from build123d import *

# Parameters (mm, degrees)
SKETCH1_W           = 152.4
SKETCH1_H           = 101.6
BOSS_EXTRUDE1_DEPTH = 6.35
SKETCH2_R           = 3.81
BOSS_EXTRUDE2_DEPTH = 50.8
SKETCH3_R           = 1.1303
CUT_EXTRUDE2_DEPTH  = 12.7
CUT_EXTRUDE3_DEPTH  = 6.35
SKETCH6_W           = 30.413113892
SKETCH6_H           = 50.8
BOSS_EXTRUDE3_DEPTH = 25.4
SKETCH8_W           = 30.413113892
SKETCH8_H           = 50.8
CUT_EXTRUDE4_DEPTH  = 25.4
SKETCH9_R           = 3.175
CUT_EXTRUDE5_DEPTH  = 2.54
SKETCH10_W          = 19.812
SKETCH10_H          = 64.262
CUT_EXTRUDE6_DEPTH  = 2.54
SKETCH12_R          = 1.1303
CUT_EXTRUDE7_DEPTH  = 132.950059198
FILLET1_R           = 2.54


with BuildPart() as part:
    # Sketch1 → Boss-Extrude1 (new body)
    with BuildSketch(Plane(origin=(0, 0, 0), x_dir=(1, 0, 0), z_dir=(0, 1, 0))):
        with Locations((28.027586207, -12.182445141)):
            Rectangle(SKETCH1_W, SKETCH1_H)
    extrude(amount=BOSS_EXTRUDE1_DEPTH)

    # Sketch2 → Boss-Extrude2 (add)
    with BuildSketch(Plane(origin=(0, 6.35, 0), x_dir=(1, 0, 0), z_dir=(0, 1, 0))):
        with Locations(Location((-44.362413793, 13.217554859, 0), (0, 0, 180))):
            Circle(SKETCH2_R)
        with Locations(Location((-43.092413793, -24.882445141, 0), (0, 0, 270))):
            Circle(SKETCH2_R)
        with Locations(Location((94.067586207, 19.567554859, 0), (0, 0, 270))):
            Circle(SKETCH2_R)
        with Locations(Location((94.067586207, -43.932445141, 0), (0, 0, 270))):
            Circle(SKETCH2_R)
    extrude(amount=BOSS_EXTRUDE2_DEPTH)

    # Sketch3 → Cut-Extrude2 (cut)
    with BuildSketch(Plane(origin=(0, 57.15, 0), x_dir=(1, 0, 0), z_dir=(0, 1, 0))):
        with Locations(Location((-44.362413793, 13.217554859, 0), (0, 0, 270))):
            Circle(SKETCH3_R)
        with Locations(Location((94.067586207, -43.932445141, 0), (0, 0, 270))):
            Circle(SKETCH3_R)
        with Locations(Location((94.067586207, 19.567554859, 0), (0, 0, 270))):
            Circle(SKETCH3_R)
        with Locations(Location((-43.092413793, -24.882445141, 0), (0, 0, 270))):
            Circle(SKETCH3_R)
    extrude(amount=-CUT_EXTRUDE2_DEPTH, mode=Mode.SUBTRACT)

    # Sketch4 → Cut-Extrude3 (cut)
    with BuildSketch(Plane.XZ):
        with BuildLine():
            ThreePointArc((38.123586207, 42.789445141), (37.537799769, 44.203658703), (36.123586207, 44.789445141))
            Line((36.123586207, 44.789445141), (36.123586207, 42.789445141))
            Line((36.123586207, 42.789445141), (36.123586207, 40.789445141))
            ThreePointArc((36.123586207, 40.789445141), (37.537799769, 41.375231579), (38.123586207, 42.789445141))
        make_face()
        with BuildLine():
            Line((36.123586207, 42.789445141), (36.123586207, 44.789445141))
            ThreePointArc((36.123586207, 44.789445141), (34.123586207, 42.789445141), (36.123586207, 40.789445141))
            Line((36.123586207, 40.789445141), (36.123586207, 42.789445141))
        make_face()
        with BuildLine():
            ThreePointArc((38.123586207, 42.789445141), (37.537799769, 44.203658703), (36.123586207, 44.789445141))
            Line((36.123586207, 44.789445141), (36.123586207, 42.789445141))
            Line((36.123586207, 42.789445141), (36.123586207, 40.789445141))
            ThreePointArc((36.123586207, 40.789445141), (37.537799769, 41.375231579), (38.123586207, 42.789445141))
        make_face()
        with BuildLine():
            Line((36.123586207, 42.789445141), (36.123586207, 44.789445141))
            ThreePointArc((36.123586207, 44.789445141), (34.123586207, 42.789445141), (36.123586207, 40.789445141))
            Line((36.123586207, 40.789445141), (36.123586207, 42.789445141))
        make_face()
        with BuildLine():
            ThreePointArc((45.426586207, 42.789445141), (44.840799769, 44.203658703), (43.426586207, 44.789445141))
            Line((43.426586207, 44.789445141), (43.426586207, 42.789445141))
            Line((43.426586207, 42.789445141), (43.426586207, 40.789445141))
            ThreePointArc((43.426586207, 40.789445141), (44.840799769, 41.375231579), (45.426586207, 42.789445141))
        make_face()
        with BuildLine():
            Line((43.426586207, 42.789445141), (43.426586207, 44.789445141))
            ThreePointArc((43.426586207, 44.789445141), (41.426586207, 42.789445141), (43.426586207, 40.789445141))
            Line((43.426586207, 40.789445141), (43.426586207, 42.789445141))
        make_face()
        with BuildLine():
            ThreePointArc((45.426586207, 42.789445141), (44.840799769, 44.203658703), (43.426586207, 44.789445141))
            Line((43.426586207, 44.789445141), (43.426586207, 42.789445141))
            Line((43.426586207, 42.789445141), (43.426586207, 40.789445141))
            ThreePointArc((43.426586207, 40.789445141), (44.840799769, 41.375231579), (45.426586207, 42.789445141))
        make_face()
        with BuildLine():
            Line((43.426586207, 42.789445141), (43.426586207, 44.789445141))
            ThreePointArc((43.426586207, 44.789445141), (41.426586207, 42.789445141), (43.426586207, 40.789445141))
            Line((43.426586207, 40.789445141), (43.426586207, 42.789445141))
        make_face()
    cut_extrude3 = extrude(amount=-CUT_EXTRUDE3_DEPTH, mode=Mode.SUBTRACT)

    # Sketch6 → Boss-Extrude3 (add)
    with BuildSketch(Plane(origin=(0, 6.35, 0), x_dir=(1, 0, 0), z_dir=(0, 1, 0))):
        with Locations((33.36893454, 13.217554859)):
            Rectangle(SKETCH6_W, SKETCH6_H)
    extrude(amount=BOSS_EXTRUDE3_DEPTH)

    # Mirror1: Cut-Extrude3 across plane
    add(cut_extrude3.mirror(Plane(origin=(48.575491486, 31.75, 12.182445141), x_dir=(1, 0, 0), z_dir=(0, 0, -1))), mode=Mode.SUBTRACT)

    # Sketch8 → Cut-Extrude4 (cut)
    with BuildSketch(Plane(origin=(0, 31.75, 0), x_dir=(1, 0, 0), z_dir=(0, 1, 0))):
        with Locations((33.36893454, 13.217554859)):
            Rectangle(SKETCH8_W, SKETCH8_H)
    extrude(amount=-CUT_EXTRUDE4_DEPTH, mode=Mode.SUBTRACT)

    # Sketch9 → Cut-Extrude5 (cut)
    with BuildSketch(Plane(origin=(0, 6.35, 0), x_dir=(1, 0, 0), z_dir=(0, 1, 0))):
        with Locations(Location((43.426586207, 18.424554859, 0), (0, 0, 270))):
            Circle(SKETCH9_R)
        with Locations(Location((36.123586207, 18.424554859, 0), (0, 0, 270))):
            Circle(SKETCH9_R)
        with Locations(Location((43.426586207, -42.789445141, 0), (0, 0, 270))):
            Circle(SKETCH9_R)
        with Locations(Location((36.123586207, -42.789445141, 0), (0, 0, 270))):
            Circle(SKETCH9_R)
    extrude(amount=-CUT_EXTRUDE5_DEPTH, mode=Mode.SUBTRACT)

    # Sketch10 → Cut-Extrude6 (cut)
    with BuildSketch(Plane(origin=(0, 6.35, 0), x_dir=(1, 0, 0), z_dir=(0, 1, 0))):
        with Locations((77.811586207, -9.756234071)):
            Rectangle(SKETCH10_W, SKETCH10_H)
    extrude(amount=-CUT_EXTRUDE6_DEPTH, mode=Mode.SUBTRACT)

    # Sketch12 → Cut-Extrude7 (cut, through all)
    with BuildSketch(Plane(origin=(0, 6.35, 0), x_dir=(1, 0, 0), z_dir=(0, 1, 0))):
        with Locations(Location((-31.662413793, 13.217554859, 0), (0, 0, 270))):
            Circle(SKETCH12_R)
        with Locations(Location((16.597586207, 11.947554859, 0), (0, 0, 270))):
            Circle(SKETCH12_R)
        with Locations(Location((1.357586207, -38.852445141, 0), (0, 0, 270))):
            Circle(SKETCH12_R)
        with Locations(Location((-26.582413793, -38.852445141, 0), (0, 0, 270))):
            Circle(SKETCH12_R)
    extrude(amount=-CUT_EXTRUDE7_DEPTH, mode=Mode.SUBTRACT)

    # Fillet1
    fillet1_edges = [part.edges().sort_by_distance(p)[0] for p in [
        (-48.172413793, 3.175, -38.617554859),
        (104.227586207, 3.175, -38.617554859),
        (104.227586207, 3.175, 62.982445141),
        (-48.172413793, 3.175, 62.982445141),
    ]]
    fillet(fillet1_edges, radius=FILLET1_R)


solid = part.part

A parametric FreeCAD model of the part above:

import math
import FreeCAD as App
import Part
import Sketcher

V = App.Vector
Q = App.Units.Quantity


def edges_at(feature, points):
    """Names of the edges that pass closest to the given points."""
    edges = feature.Shape.Edges
    near = lambda p: min(range(len(edges)), key=lambda i: edges[i].distToShape(Part.Vertex(*p))[0])
    return sorted({f"Edge{near(p) + 1}" for p in points})

doc = App.newDocument("Part")
body = doc.addObject("PartDesign::Body", "Body")

sketch1 = body.newObject("Sketcher::SketchObject", "Sketch")
sketch1.AttachmentSupport = (doc.getObject("XZ_Plane"), [""])
sketch1.MapMode = "FlatFace"
sketch1.addGeometry([
    Part.LineSegment(V(-48, -39, 0), V(-48, 63, 0)),
    Part.LineSegment(V(-48, 63, 0), V(104, 63, 0)),
    Part.LineSegment(V(104, 63, 0), V(104, -39, 0)),
    Part.LineSegment(V(104, -39, 0), V(-48, -39, 0)),
], False)
sketch1.addConstraint([
    Sketcher.Constraint("Coincident", 0, 2, 1, 1),
    Sketcher.Constraint("Coincident", 1, 2, 2, 1),
    Sketcher.Constraint("Coincident", 2, 2, 3, 1),
    Sketcher.Constraint("Coincident", 3, 2, 0, 1),
    Sketcher.Constraint("Vertical", 0),
    Sketcher.Constraint("Horizontal", 1),
    Sketcher.Constraint("Vertical", 2),
    Sketcher.Constraint("Horizontal", 3),
    Sketcher.Constraint("DistanceX", 1, 1, 1, 2, Q("6 in")),
    Sketcher.Constraint("DistanceY", 0, 1, 0, 2, Q("4 in")),
    Sketcher.Constraint("DistanceX", 0, 2, -1, 1, 48.172414),
    Sketcher.Constraint("DistanceY", -1, 1, 0, 2, 62.982445),
])
pad1 = body.newObject("PartDesign::Pad", "Pad")
pad1.Profile = sketch1
pad1.Length = Q("0.25 in")
pad1.Reversed = True

sketch2 = body.newObject("Sketcher::SketchObject", "Sketch001")
sketch2.AttachmentSupport = (doc.getObject("XZ_Plane"), [""])
sketch2.MapMode = "FlatFace"
sketch2.AttachmentOffset = App.Placement(V(0, 0, -0.25 * 25.4), App.Rotation())
sketch2.addGeometry([
    Part.Circle(V(-44.4, -13.2, 0), V(0, 0, 1), 3.8),
    Part.Circle(V(-43.1, 24.9, 0), V(0, 0, 1), 3.8),
    Part.Circle(V(94.1, -19.6, 0), V(0, 0, 1), 3.8),
    Part.Circle(V(94.1, 43.9, 0), V(0, 0, 1), 3.8),
], False)
sketch2.addConstraint([
    Sketcher.Constraint("Equal", 0, 1),
    Sketcher.Constraint("Equal", 1, 2),
    Sketcher.Constraint("Equal", 2, 3),
    Sketcher.Constraint("Vertical", 2, 3, 3, 3),
    Sketcher.Constraint("Diameter", 0, Q("0.3 in")),
    Sketcher.Constraint("DistanceY", 0, 3, 1, 3, Q("1.5 in")),
    Sketcher.Constraint("DistanceX", 1, 3, 2, 3, Q("5.4 in")),
    Sketcher.Constraint("DistanceY", 2, 3, 3, 3, Q("2.5 in")),
    Sketcher.Constraint("DistanceX", 0, 3, 1, 3, Q("0.05 in")),
    Sketcher.Constraint("DistanceY", 2, 3, 0, 3, Q("0.25 in")),
    Sketcher.Constraint("DistanceX", 0, 3, -1, 1, 44.362414),
    Sketcher.Constraint("DistanceY", 0, 3, -1, 1, 13.217555),
])
pad2 = body.newObject("PartDesign::Pad", "Pad001")
pad2.Profile = sketch2
pad2.Length = Q("2 in")
pad2.Reversed = True

sketch3 = body.newObject("Sketcher::SketchObject", "Sketch002")
sketch3.AttachmentSupport = (doc.getObject("XZ_Plane"), [""])
sketch3.MapMode = "FlatFace"
sketch3.AttachmentOffset = App.Placement(V(0, 0, -2.25 * 25.4), App.Rotation())
sketch3.addGeometry([
    Part.Circle(V(-44.4, -13.2, 0), V(0, 0, 1), 1.1),
    Part.Circle(V(94.1, 43.9, 0), V(0, 0, 1), 1.1),
    Part.Circle(V(94.1, -19.6, 0), V(0, 0, 1), 1.1),
    Part.Circle(V(-43.1, 24.9, 0), V(0, 0, 1), 1.1),
], False)
sketch3.addConstraint([
    Sketcher.Constraint("Equal", 0, 1),
    Sketcher.Constraint("Equal", 1, 2),
    Sketcher.Constraint("Equal", 2, 3),
    Sketcher.Constraint("Vertical", 1, 3, 2, 3),
    Sketcher.Constraint("Diameter", 0, Q("0.089 in")),
    Sketcher.Constraint("DistanceY", 2, 3, 1, 3, Q("2.5 in")),
    Sketcher.Constraint("DistanceY", 0, 3, 3, 3, Q("1.5 in")),
    Sketcher.Constraint("DistanceX", 3, 3, 1, 3, Q("5.4 in")),
    Sketcher.Constraint("DistanceX", 0, 3, 1, 3, Q("5.45 in")),
    Sketcher.Constraint("DistanceY", 0, 3, 1, 3, Q("2.25 in")),
    Sketcher.Constraint("DistanceX", 0, 3, -1, 1, 44.362414),
    Sketcher.Constraint("DistanceY", 0, 3, -1, 1, 13.217555),
])
pocket1 = body.newObject("PartDesign::Pocket", "Pocket")
pocket1.Profile = sketch3
pocket1.Length = Q("0.5 in")
pocket1.Reversed = True

sketch4 = body.newObject("Sketcher::SketchObject", "Sketch003")
sketch4.AttachmentSupport = (doc.getObject("XZ_Plane"), [""])
sketch4.MapMode = "FlatFace"
sketch4.addGeometry([
    Part.ArcOfCircle(Part.Circle(V(36.1, 42.8, 0), V(0, 0, 1), 2), math.radians(0), math.radians(90)),
    Part.ArcOfCircle(Part.Circle(V(36.1, 42.8, 0), V(0, 0, 1), 2), math.radians(90), math.radians(270)),
    Part.ArcOfCircle(Part.Circle(V(36.1, 42.8, 0), V(0, 0, 1), 2), math.radians(-90), math.radians(0)),
    Part.ArcOfCircle(Part.Circle(V(43.4, 42.8, 0), V(0, 0, 1), 2), math.radians(0), math.radians(90)),
    Part.ArcOfCircle(Part.Circle(V(43.4, 42.8, 0), V(0, 0, 1), 2), math.radians(90), math.radians(270)),
    Part.ArcOfCircle(Part.Circle(V(43.4, 42.8, 0), V(0, 0, 1), 2), math.radians(-90), math.radians(0)),
], False)
sketch4.addConstraint([
    Sketcher.Constraint("Tangent", 0, 2, 1, 1),
    Sketcher.Constraint("Tangent", 1, 2, 2, 1),
    Sketcher.Constraint("Tangent", 2, 2, 0, 1),
    Sketcher.Constraint("Tangent", 3, 2, 4, 1),
    Sketcher.Constraint("Tangent", 4, 2, 5, 1),
    Sketcher.Constraint("Tangent", 5, 2, 3, 1),
    Sketcher.Constraint("Equal", 2, 3),
    Sketcher.Constraint("Horizontal", 2, 3, 3, 3),
    Sketcher.Constraint("Horizontal", 5, 3, 2, 2),
    Sketcher.Constraint("Horizontal", 2, 2, 5, 2),
    Sketcher.Constraint("Vertical", 2, 3, 0, 2),
    Sketcher.Constraint("Vertical", 0, 2, 1, 2),
    Sketcher.Constraint("Vertical", 5, 3, 3, 2),
    Sketcher.Constraint("Vertical", 3, 2, 4, 2),
    Sketcher.Constraint("Radius", 0, 2.0),
    Sketcher.Constraint("DistanceX", 1, 3, 3, 3, 7.303),
    Sketcher.Constraint("DistanceX", -1, 1, 0, 3, 36.123586),
    Sketcher.Constraint("DistanceY", -1, 1, 0, 3, 42.789445),
])
pocket2 = body.newObject("PartDesign::Pocket", "Pocket001")
pocket2.Profile = sketch4
pocket2.Length = Q("0.25 in")

sketch5 = body.newObject("Sketcher::SketchObject", "Sketch004")
sketch5.AttachmentSupport = (doc.getObject("XZ_Plane"), [""])
sketch5.MapMode = "FlatFace"
sketch5.AttachmentOffset = App.Placement(V(0, 0, -0.25 * 25.4), App.Rotation())
sketch5.addGeometry([
    Part.LineSegment(V(18, -39, 0), V(18, 12, 0)),
    Part.LineSegment(V(18, 12, 0), V(49, 12, 0)),
    Part.LineSegment(V(49, 12, 0), V(49, -39, 0)),
    Part.LineSegment(V(49, -39, 0), V(18, -39, 0)),
], False)
sketch5.addConstraint([
    Sketcher.Constraint("Coincident", 0, 2, 1, 1),
    Sketcher.Constraint("Coincident", 1, 2, 2, 1),
    Sketcher.Constraint("Coincident", 2, 2, 3, 1),
    Sketcher.Constraint("Coincident", 3, 2, 0, 1),
    Sketcher.Constraint("Vertical", 0),
    Sketcher.Constraint("Horizontal", 1),
    Sketcher.Constraint("Vertical", 2),
    Sketcher.Constraint("Horizontal", 3),
    Sketcher.Constraint("DistanceY", 0, 1, 0, 2, Q("2 in")),
    Sketcher.Constraint("DistanceX", 1, 1, 1, 2, 30.413114),
    Sketcher.Constraint("DistanceX", -1, 1, 1, 2, 48.575491),
    Sketcher.Constraint("DistanceY", -1, 1, 0, 2, 12.182445),
])
pad3 = body.newObject("PartDesign::Pad", "Pad002")
pad3.Profile = sketch5
pad3.Length = Q("1 in")
pad3.Reversed = True
doc.recompute()

datumplane = body.newObject("PartDesign::Plane", "DatumPlane")
datumplane.AttachmentSupport = (doc.getObject("XY_Plane"), [""])
datumplane.MapMode = "FlatFace"
datumplane.AttachmentOffset = App.Placement(V(0, 0, 12.182445), App.Rotation())
mirrored = body.newObject("PartDesign::Mirrored", "Mirrored")
mirrored.Originals = [pocket2]
mirrored.MirrorPlane = (datumplane, [""])
body.Tip = mirrored

sketch6 = body.newObject("Sketcher::SketchObject", "Sketch005")
sketch6.AttachmentSupport = (doc.getObject("XZ_Plane"), [""])
sketch6.MapMode = "FlatFace"
sketch6.AttachmentOffset = App.Placement(V(0, 0, -1.25 * 25.4), App.Rotation())
sketch6.addGeometry([
    Part.LineSegment(V(18, -39, 0), V(18, 12, 0)),
    Part.LineSegment(V(18, 12, 0), V(49, 12, 0)),
    Part.LineSegment(V(49, 12, 0), V(49, -39, 0)),
    Part.LineSegment(V(49, -39, 0), V(18, -39, 0)),
], False)
sketch6.addConstraint([
    Sketcher.Constraint("Coincident", 0, 2, 1, 1),
    Sketcher.Constraint("Coincident", 1, 2, 2, 1),
    Sketcher.Constraint("Coincident", 2, 2, 3, 1),
    Sketcher.Constraint("Coincident", 3, 2, 0, 1),
    Sketcher.Constraint("Vertical", 0),
    Sketcher.Constraint("Horizontal", 1),
    Sketcher.Constraint("Vertical", 2),
    Sketcher.Constraint("Horizontal", 3),
    Sketcher.Constraint("DistanceY", 0, 1, 0, 2, Q("2 in")),
    Sketcher.Constraint("DistanceX", 1, 1, 1, 2, 30.413114),
    Sketcher.Constraint("DistanceX", -1, 1, 1, 2, 48.575491),
    Sketcher.Constraint("DistanceY", -1, 1, 0, 2, 12.182445),
])
pocket3 = body.newObject("PartDesign::Pocket", "Pocket002")
pocket3.Profile = sketch6
pocket3.Length = Q("1 in")
pocket3.Reversed = True

sketch7 = body.newObject("Sketcher::SketchObject", "Sketch006")
sketch7.AttachmentSupport = (doc.getObject("XZ_Plane"), [""])
sketch7.MapMode = "FlatFace"
sketch7.AttachmentOffset = App.Placement(V(0, 0, -0.25 * 25.4), App.Rotation())
sketch7.addGeometry([
    Part.Circle(V(43.4, -18.4, 0), V(0, 0, 1), 3.2),
    Part.Circle(V(36.1, -18.4, 0), V(0, 0, 1), 3.2),
    Part.Circle(V(43.4, 42.8, 0), V(0, 0, 1), 3.2),
    Part.Circle(V(36.1, 42.8, 0), V(0, 0, 1), 3.2),
], False)
sketch7.addConstraint([
    Sketcher.Constraint("Equal", 0, 1),
    Sketcher.Constraint("Equal", 1, 2),
    Sketcher.Constraint("Equal", 2, 3),
    Sketcher.Constraint("Horizontal", 0, 3, 1, 3),
    Sketcher.Constraint("Horizontal", 2, 3, 3, 3),
    Sketcher.Constraint("Vertical", 0, 3, 2, 3),
    Sketcher.Constraint("Vertical", 1, 3, 3, 3),
    Sketcher.Constraint("Diameter", 0, Q("0.25 in")),
    Sketcher.Constraint("DistanceY", 0, 3, 2, 3, Q("2.41 in")),
    Sketcher.Constraint("DistanceX", 1, 3, 0, 3, 7.303),
    Sketcher.Constraint("DistanceX", -1, 1, 0, 3, 43.426586),
    Sketcher.Constraint("DistanceY", 0, 3, -1, 1, 18.424555),
])
pocket4 = body.newObject("PartDesign::Pocket", "Pocket003")
pocket4.Profile = sketch7
pocket4.Length = Q("0.1 in")
pocket4.Reversed = True

sketch8 = body.newObject("Sketcher::SketchObject", "Sketch007")
sketch8.AttachmentSupport = (doc.getObject("XZ_Plane"), [""])
sketch8.MapMode = "FlatFace"
sketch8.AttachmentOffset = App.Placement(V(0, 0, -0.25 * 25.4), App.Rotation())
sketch8.addGeometry([
    Part.LineSegment(V(68, -22, 0), V(68, 42, 0)),
    Part.LineSegment(V(68, 42, 0), V(88, 42, 0)),
    Part.LineSegment(V(88, 42, 0), V(88, -22, 0)),
    Part.LineSegment(V(88, -22, 0), V(68, -22, 0)),
], False)
sketch8.addConstraint([
    Sketcher.Constraint("Coincident", 0, 2, 1, 1),
    Sketcher.Constraint("Coincident", 1, 2, 2, 1),
    Sketcher.Constraint("Coincident", 2, 2, 3, 1),
    Sketcher.Constraint("Coincident", 3, 2, 0, 1),
    Sketcher.Constraint("Vertical", 0),
    Sketcher.Constraint("Horizontal", 1),
    Sketcher.Constraint("Vertical", 2),
    Sketcher.Constraint("Horizontal", 3),
    Sketcher.Constraint("DistanceX", 1, 1, 1, 2, Q("0.78 in")),
    Sketcher.Constraint("DistanceY", 0, 1, 0, 2, Q("2.53 in")),
    Sketcher.Constraint("DistanceX", -1, 1, 0, 2, 67.905586),
    Sketcher.Constraint("DistanceY", -1, 1, 0, 2, 41.887234),
])
pocket5 = body.newObject("PartDesign::Pocket", "Pocket004")
pocket5.Profile = sketch8
pocket5.Length = Q("0.1 in")
pocket5.Reversed = True

sketch9 = body.newObject("Sketcher::SketchObject", "Sketch008")
sketch9.AttachmentSupport = (doc.getObject("XZ_Plane"), [""])
sketch9.MapMode = "FlatFace"
sketch9.AttachmentOffset = App.Placement(V(0, 0, -0.25 * 25.4), App.Rotation())
sketch9.addGeometry([
    Part.Circle(V(-31.7, -13.2, 0), V(0, 0, 1), 1.1),
    Part.Circle(V(16.6, -11.9, 0), V(0, 0, 1), 1.1),
    Part.Circle(V(1.4, 38.9, 0), V(0, 0, 1), 1.1),
    Part.Circle(V(-26.6, 38.9, 0), V(0, 0, 1), 1.1),
], False)
sketch9.addConstraint([
    Sketcher.Constraint("Equal", 0, 1),
    Sketcher.Constraint("Equal", 1, 2),
    Sketcher.Constraint("Equal", 2, 3),
    Sketcher.Constraint("Horizontal", 2, 3, 3, 3),
    Sketcher.Constraint("Diameter", 0, Q("0.089 in")),
    Sketcher.Constraint("DistanceY", 1, 3, 2, 3, Q("2 in")),
    Sketcher.Constraint("DistanceX", 0, 3, 1, 3, Q("1.9 in")),
    Sketcher.Constraint("DistanceX", 2, 3, 1, 3, Q("0.6 in")),
    Sketcher.Constraint("DistanceX", 3, 3, 2, 3, Q("1.1 in")),
    Sketcher.Constraint("DistanceY", 0, 3, 1, 3, Q("0.05 in")),
    Sketcher.Constraint("DistanceX", 0, 3, -1, 1, 31.662414),
    Sketcher.Constraint("DistanceY", 0, 3, -1, 1, 13.217555),
])
pocket6 = body.newObject("PartDesign::Pocket", "Pocket005")
pocket6.Profile = sketch9
pocket6.Type = "ThroughAll"
pocket6.Reversed = True
doc.recompute()

fillet = body.newObject("PartDesign::Fillet", "Fillet")
fillet.Base = (pocket6, edges_at(pocket6, [
    (-48.172, 3.175, -38.618),
    (104.228, 3.175, -38.618),
    (104.228, 3.175, 62.982),
    (-48.172, 3.175, 62.982),
]))
fillet.Radius = Q("0.1 in")

doc.recompute()
